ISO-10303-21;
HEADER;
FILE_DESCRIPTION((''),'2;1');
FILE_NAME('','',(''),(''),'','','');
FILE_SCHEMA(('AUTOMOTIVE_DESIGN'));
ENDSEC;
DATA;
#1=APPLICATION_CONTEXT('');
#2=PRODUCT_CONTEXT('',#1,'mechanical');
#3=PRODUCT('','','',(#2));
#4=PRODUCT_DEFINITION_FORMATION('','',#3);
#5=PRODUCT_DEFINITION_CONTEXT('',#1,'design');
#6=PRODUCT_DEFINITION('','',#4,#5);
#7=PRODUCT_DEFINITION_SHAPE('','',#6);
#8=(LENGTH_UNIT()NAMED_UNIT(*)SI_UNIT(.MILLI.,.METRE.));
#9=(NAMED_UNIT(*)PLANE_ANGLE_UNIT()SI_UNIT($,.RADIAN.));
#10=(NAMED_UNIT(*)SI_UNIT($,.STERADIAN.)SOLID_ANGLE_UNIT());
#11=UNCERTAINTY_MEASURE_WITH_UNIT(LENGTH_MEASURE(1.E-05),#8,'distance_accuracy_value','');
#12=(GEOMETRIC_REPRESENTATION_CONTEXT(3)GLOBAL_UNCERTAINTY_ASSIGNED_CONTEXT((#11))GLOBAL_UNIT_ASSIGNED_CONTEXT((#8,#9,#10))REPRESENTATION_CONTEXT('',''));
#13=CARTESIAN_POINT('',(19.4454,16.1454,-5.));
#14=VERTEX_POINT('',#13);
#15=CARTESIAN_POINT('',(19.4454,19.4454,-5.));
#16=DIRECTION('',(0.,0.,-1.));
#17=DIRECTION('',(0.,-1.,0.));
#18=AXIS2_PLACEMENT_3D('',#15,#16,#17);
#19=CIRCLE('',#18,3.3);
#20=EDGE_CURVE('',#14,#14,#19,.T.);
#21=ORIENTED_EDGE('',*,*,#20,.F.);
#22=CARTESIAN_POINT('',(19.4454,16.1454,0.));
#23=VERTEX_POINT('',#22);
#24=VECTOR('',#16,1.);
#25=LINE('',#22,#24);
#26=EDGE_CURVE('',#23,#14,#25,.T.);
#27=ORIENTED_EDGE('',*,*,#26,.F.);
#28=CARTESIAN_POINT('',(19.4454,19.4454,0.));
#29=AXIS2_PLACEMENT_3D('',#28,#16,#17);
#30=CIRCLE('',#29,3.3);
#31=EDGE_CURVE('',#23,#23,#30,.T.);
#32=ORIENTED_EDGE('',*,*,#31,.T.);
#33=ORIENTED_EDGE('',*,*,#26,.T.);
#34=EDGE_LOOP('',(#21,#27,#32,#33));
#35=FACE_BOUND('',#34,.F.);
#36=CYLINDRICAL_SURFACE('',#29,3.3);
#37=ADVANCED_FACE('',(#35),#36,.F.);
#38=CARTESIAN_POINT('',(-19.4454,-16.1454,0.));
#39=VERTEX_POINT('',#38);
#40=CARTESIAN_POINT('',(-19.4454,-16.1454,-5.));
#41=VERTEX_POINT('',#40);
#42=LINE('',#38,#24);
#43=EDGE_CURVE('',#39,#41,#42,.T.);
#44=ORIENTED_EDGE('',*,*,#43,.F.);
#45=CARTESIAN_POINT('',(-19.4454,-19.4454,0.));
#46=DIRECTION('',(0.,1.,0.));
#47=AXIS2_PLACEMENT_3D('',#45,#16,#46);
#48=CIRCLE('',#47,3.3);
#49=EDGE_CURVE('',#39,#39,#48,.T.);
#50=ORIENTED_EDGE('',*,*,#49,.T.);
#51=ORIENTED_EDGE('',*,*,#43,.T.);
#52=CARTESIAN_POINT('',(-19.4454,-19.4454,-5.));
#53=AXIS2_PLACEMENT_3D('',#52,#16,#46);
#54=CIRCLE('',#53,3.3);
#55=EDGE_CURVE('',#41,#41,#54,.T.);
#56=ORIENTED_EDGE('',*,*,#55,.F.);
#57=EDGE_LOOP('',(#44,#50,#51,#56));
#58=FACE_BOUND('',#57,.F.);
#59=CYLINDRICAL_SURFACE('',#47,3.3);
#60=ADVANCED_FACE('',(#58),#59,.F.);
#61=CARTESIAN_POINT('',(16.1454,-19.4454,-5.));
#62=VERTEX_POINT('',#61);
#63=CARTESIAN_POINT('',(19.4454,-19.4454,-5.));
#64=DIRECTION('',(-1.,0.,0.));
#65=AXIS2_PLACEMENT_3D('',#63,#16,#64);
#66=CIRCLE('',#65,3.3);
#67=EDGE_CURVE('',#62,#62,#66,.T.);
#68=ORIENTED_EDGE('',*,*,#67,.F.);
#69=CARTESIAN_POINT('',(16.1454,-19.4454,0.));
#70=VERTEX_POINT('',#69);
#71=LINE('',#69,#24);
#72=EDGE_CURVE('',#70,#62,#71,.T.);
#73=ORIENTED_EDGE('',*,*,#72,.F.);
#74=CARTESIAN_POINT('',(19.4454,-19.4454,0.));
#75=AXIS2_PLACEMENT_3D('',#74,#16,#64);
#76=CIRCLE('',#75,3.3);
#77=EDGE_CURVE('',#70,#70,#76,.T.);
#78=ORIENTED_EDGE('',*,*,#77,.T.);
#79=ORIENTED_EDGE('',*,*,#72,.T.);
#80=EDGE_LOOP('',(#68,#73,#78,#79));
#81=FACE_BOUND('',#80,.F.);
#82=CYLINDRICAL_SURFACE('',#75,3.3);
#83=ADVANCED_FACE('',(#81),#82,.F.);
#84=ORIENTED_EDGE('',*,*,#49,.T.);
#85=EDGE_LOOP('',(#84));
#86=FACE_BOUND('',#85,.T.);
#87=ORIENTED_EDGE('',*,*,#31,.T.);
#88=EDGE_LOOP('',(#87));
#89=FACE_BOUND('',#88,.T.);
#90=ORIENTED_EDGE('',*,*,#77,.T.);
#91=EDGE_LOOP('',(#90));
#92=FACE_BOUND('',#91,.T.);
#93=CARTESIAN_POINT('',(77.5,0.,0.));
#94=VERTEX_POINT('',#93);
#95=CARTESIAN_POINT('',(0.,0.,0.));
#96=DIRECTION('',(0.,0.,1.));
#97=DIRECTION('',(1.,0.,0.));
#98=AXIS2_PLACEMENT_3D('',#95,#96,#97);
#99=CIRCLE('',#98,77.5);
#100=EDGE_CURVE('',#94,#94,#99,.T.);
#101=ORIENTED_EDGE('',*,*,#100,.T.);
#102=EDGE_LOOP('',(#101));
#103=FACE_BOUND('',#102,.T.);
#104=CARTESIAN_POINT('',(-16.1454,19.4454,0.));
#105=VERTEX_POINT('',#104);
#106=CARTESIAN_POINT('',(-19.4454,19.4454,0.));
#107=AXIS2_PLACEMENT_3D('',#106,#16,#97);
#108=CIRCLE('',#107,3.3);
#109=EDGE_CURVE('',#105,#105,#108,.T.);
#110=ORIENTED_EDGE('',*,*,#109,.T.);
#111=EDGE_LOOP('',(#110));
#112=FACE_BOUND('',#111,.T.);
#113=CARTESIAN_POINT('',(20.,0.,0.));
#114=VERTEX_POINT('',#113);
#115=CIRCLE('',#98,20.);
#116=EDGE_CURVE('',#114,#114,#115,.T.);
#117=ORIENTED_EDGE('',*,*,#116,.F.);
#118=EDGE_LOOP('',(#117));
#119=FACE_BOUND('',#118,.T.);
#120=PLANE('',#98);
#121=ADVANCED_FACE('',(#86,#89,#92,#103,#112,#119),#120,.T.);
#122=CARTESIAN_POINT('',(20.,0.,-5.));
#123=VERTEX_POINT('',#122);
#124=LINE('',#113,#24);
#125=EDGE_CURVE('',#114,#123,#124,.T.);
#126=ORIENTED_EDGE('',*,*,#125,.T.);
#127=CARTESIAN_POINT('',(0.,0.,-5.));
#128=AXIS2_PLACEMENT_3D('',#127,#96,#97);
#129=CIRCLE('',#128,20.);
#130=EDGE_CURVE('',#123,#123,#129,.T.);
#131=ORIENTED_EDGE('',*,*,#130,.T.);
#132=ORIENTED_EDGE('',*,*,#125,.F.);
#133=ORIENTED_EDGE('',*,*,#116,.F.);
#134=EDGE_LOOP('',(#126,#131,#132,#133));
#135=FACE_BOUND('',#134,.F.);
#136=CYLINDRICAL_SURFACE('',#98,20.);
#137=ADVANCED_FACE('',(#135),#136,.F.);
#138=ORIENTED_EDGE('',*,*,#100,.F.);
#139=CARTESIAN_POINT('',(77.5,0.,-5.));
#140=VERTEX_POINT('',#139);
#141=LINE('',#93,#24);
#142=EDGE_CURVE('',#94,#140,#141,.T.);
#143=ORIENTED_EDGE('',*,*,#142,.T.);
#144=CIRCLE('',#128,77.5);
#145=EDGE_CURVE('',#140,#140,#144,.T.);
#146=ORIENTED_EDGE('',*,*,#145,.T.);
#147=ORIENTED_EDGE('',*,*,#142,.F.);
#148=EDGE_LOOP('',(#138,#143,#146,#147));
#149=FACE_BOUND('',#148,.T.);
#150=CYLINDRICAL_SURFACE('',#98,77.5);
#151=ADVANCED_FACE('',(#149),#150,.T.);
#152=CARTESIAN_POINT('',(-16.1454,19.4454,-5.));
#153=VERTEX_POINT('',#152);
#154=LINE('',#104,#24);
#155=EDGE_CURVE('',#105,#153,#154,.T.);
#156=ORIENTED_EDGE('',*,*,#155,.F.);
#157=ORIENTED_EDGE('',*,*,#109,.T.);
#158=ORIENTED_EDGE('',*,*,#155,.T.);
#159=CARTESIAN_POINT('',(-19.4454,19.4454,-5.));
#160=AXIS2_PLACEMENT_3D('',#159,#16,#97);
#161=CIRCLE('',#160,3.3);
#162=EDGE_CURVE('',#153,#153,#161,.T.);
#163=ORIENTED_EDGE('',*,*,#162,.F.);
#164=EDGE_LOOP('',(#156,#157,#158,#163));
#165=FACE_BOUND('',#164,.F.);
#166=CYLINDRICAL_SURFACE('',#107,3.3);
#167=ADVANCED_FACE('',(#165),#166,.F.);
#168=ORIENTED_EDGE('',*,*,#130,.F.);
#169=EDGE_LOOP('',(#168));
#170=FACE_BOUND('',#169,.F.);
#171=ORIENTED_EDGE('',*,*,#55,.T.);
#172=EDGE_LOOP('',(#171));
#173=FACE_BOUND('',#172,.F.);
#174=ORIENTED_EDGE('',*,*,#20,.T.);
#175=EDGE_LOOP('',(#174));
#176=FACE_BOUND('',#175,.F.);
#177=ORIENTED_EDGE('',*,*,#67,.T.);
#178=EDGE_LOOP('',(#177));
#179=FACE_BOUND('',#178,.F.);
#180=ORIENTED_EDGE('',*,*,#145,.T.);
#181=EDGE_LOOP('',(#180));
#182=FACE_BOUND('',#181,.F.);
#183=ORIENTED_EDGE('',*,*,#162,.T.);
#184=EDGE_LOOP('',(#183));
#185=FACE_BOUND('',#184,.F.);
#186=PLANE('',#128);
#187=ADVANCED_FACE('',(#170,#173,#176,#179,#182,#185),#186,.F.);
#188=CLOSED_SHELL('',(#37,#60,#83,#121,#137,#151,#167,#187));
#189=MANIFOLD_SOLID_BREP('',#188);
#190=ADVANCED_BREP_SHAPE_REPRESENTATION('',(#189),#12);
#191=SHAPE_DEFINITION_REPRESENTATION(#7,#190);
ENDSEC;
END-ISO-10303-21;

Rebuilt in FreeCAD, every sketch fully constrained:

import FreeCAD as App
import Part
import Sketcher
from FreeCAD import Vector

doc = App.newDocument("Part")
body = doc.addObject("PartDesign::Body", "Body")

sketch1 = body.newObject("Sketcher::SketchObject", "Sketch")
sketch1.AttachmentSupport = (doc.getObject("XY_Plane"), [""])
sketch1.MapMode = "FlatFace"
sketch1.addGeometry([
    Part.Circle(Vector(0, 0, 0), Vector(0, 0, 1), 78),
    Part.Circle(Vector(0, 0, 0), Vector(0, 0, 1), 20),
], False)
sketch1.addConstraint([
    Sketcher.Constraint("Coincident", 0, 3, -1, 1),
    Sketcher.Constraint("Coincident", 1, 3, -1, 1),
    Sketcher.Constraint("Diameter", 0, 155.0),
    Sketcher.Constraint("Diameter", 1, 40.0),
])
pad1 = body.newObject("PartDesign::Pad", "Pad")
pad1.Profile = sketch1
pad1.Length = 5
pad1.Reversed = True

sketch2 = body.newObject("Sketcher::SketchObject", "Sketch001")
sketch2.AttachmentSupport = (doc.getObject("XY_Plane"), [""])
sketch2.MapMode = "FlatFace"
sketch2.addGeometry(Part.Circle(Vector(19.4, 19.4, 0), Vector(0, 0, 1), 3.3), False)
sketch2.addConstraint([
    Sketcher.Constraint("Diameter", 0, 6.6),
    Sketcher.Constraint("DistanceX", -1, 1, 0, 3, 19.4454),
    Sketcher.Constraint("DistanceY", -1, 1, 0, 3, 19.4454),
])
doc.recompute()
hole = body.newObject("PartDesign::Hole", "Hole")
hole.Profile = sketch2
hole.ThreadType = "None"
hole.Diameter = 6.6
hole.DepthType = "ThroughAll"
doc.recompute()

polarpattern = body.newObject("PartDesign::PolarPattern", "PolarPattern")
polarpattern.Originals = [hole]
polarpattern.Axis = (doc.getObject("Z_Axis"), [""])
polarpattern.Angle = 360
polarpattern.Occurrences = 4
body.Tip = polarpattern

doc.recompute()
